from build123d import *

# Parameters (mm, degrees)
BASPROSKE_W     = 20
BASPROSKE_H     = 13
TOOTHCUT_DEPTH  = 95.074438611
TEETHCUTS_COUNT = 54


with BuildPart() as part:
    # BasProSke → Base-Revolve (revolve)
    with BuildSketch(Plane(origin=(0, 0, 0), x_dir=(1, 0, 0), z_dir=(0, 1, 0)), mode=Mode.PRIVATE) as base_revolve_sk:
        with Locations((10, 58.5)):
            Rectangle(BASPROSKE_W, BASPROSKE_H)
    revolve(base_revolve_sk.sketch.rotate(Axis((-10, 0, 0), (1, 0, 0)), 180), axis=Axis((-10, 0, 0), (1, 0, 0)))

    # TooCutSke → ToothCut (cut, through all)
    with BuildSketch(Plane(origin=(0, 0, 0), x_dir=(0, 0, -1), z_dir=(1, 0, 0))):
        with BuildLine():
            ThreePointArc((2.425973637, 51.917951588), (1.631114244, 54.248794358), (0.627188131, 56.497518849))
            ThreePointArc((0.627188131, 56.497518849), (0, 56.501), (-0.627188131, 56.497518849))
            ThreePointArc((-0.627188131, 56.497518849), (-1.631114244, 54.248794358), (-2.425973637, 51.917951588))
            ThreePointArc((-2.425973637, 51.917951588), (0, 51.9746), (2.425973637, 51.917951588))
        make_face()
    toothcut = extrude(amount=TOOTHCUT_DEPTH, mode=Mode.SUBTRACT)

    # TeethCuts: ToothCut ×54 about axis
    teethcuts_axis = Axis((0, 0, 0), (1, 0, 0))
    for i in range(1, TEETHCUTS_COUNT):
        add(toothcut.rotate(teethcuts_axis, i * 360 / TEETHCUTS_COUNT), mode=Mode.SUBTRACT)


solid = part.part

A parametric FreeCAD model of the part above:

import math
import FreeCAD as App
import Part
import Sketcher
from FreeCAD import Vector

doc = App.newDocument("Part")
body = doc.addObject("PartDesign::Body", "Body")

# Sketch on XZ plane
sketch1 = body.newObject("Sketcher::SketchObject", "Sketch")
sketch1.AttachmentSupport = (doc.getObject("XZ_Plane"), [""])
sketch1.MapMode = "FlatFace"
sketch1.addGeometry(Part.LineSegment(Vector(0, -65, 0), Vector(0, -52, 0)), False)
sketch1.addGeometry(Part.LineSegment(Vector(0, -52, 0), Vector(20, -52, 0)), False)
sketch1.addGeometry(Part.LineSegment(Vector(20, -52, 0), Vector(20, -65, 0)), False)
sketch1.addGeometry(Part.LineSegment(Vector(20, -65, 0), Vector(0, -65, 0)), False)
sketch1.addConstraint(Sketcher.Constraint("Coincident", 0, 2, 1, 1))
sketch1.addConstraint(Sketcher.Constraint("Coincident", 1, 2, 2, 1))
sketch1.addConstraint(Sketcher.Constraint("Coincident", 2, 2, 3, 1))
sketch1.addConstraint(Sketcher.Constraint("Coincident", 3, 2, 0, 1))
sketch1.addConstraint(Sketcher.Constraint("Vertical", 0))
sketch1.addConstraint(Sketcher.Constraint("Horizontal", 1))
sketch1.addConstraint(Sketcher.Constraint("Vertical", 2))
sketch1.addConstraint(Sketcher.Constraint("Horizontal", 3))
sketch1.addConstraint(Sketcher.Constraint("PointOnObject", 0, 2, -2))
sketch1.addConstraint(Sketcher.Constraint("DistanceX", 1, 1, 1, 2, 20.0))
sketch1.addConstraint(Sketcher.Constraint("DistanceY", 0, 1, 0, 2, 13.0))
sketch1.addConstraint(Sketcher.Constraint("DistanceY", 0, 2, -1, 1, 52.0))
revolution = body.newObject("PartDesign::Revolution", "Revolution")
revolution.Profile = sketch1
revolution.ReferenceAxis = (sketch1, ["H_Axis"])
revolution.Angle = 360

# Sketch on YZ plane
sketch2 = body.newObject("Sketcher::SketchObject", "Sketch001")
sketch2.AttachmentSupport = (doc.getObject("YZ_Plane"), [""])
sketch2.MapMode = "FlatFace"
sketch2.addGeometry(Part.ArcOfCircle(Part.Circle(Vector(44.4, 23.5, 0), Vector(0, 0, 1), 27), math.radians(-73.78), math.radians(-63.33)), False)
sketch2.addGeometry(Part.ArcOfCircle(Part.Circle(Vector(0, 0, 0), Vector(0, 0, 1), 56.5), math.radians(-0.64), math.radians(0.64)), False)
sketch2.addGeometry(Part.ArcOfCircle(Part.Circle(Vector(44.4, -23.5, 0), Vector(0, 0, 1), 27), math.radians(63.33), math.radians(73.78)), False)
sketch2.addGeometry(Part.ArcOfCircle(Part.Circle(Vector(0, 0, 0), Vector(0, 0, 1), 52), math.radians(-2.68), math.radians(2.68)), False)
sketch2.addConstraint(Sketcher.Constraint("Coincident", 0, 2, 1, 1))
sketch2.addConstraint(Sketcher.Constraint("Coincident", 1, 2, 2, 1))
sketch2.addConstraint(Sketcher.Constraint("Coincident", 2, 2, 3, 2))
sketch2.addConstraint(Sketcher.Constraint("Coincident", 3, 1, 0, 1))
sketch2.addConstraint(Sketcher.Constraint("Coincident", 1, 3, -1, 1))
sketch2.addConstraint(Sketcher.Constraint("Coincident", 3, 3, -1, 1))
sketch2.addConstraint(Sketcher.Constraint("Equal", 0, 2))
sketch2.addConstraint(Sketcher.Constraint("Symmetric", 0, 3, 2, 3, -1))
sketch2.addConstraint(Sketcher.Constraint("Radius", 0, 27.0))
sketch2.addConstraint(Sketcher.Constraint("Radius", 3, 51.9746))
sketch2.addConstraint(Sketcher.Constraint("Radius", 1, 56.501006))
sketch2.addConstraint(Sketcher.Constraint("DistanceX", 0, 3, 2, 2, 7.540202))
sketch2.addConstraint(Sketcher.Constraint("DistanceX", -1, 1, 0, 3, 44.37775))
pocket1 = body.newObject("PartDesign::Pocket", "Pocket")
pocket1.Profile = sketch2
pocket1.Type = "ThroughAll"
pocket1.Reversed = True
doc.recompute()

polarpattern = body.newObject("PartDesign::PolarPattern", "PolarPattern")
polarpattern.Originals = [pocket1]
polarpattern.Axis = (doc.getObject("X_Axis"), [""])
polarpattern.Angle = 360
polarpattern.Occurrences = 54
body.Tip = polarpattern

doc.recompute()
